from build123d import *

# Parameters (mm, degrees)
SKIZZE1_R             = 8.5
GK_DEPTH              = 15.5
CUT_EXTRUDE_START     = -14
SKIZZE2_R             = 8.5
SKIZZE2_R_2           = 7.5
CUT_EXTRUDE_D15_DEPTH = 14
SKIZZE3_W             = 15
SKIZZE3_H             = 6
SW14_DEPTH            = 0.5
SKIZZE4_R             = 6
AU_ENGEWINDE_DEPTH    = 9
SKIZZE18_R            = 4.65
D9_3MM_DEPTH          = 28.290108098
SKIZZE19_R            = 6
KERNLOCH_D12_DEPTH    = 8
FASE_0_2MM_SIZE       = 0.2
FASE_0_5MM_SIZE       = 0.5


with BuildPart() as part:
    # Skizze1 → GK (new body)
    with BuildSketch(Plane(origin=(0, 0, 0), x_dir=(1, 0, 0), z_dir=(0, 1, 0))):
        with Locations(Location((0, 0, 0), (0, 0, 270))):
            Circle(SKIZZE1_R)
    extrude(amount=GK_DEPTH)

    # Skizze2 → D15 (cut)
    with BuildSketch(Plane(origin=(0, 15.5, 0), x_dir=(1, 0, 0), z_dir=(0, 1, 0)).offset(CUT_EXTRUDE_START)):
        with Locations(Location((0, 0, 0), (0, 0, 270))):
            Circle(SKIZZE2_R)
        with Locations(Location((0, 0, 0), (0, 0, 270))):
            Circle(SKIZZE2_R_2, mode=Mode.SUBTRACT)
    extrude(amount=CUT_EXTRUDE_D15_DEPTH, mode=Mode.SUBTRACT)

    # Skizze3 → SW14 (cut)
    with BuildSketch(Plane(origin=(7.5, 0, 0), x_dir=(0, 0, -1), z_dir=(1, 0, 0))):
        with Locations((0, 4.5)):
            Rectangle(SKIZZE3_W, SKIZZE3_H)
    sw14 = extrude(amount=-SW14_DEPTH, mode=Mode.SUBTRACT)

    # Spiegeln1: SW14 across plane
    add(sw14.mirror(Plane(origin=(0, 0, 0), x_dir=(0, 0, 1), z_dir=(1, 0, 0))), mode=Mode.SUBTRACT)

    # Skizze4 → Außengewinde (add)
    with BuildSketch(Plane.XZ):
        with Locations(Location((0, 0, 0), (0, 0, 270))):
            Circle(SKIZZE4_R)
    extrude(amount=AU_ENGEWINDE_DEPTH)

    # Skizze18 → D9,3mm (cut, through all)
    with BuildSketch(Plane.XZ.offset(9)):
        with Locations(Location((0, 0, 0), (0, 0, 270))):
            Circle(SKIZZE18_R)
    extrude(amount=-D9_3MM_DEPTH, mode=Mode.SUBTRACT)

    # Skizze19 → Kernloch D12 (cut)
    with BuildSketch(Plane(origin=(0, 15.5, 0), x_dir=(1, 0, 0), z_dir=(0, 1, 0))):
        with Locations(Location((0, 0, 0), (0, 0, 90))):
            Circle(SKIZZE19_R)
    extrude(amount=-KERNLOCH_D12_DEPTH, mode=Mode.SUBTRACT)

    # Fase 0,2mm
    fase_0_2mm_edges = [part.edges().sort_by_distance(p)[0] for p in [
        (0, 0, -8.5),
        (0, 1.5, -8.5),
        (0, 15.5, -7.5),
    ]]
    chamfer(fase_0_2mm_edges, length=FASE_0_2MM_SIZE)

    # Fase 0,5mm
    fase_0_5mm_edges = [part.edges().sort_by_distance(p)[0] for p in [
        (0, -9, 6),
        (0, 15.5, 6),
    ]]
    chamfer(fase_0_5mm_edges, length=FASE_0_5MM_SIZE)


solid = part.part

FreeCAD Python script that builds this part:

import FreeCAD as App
import Part
import Sketcher
Q = App.Units.Quantity


def edges_at(feature, points):
    """Names of the edges that pass closest to the given points."""
    edges = feature.Shape.Edges
    near = lambda p: min(range(len(edges)), key=lambda i: edges[i].distToShape(Part.Vertex(*p))[0])
    return sorted({f"Edge{near(p) + 1}" for p in points})


def add_polygon(sketch, points):
    """Adds a closed chain of lines whose ends are joined by coincident constraints."""
    first, n = sketch.GeometryCount, len(points)
    for a, b in zip(points, points[1:] + points[:1]):
        sketch.addGeometry(Part.LineSegment(App.Vector(*a, 0), App.Vector(*b, 0)), False)
    for i in range(n):
        sketch.addConstraint(Sketcher.Constraint("Coincident", first + i, 2, first + (i + 1) % n, 1))

doc = App.newDocument("Part")
body = doc.addObject("PartDesign::Body", "Body")

# Sketch on XZ plane
sketch1 = body.newObject("Sketcher::SketchObject", "Sketch")
sketch1.AttachmentSupport = (doc.getObject("XZ_Plane"), [""])
sketch1.MapMode = "FlatFace"
sketch1.addGeometry(Part.Circle(App.Vector(0, 0, 0), App.Vector(0, 0, 1), 8), False)
sketch1.addConstraint([
    Sketcher.Constraint("Coincident", 0, 3, -1, 1),
    Sketcher.Constraint("Diameter", 0, Q("17 mm")),
])
pad1 = body.newObject("PartDesign::Pad", "Pad")
pad1.Profile = sketch1
pad1.Length = 15.5
pad1.Reversed = True

# Sketch on XZ plane
sketch2 = body.newObject("Sketcher::SketchObject", "Sketch001")
sketch2.AttachmentSupport = (doc.getObject("XZ_Plane"), [""])
sketch2.MapMode = "FlatFace"
sketch2.AttachmentOffset = App.Placement(App.Vector(0, 0, -1.5), App.Rotation())
sketch2.addGeometry([
    Part.Circle(App.Vector(0, 0, 0), App.Vector(0, 0, 1), 8),
    Part.Circle(App.Vector(0, 0, 0), App.Vector(0, 0, 1), 8),
], False)
sketch2.addConstraint([
    Sketcher.Constraint("Coincident", 0, 3, -1, 1),
    Sketcher.Constraint("Coincident", 1, 3, -1, 1),
    Sketcher.Constraint("Diameter", 0, Q("17 mm")),
    Sketcher.Constraint("Diameter", 1, Q("15 mm")),
])
pocket1 = body.newObject("PartDesign::Pocket", "Pocket")
pocket1.Profile = sketch2
pocket1.Length = 14

# Sketch on YZ plane
sketch3 = body.newObject("Sketcher::SketchObject", "Sketch002")
sketch3.AttachmentSupport = (doc.getObject("YZ_Plane"), [""])
sketch3.MapMode = "FlatFace"
sketch3.AttachmentOffset = App.Placement(App.Vector(0, 0, 7.5), App.Rotation())
add_polygon(sketch3, [(8, 8), (2, 8), (2, -8), (8, -8)])  # lines 0-3
sketch3.addConstraint([
    Sketcher.Constraint("Horizontal", 0),
    Sketcher.Constraint("Vertical", 1),
    Sketcher.Constraint("Horizontal", 2),
    Sketcher.Constraint("Vertical", 3),
    Sketcher.Constraint("DistanceX", 0, 2, 0, 1, Q("6 mm")),
    Sketcher.Constraint("DistanceY", 1, 2, 1, 1, Q("15 mm")),
    Sketcher.Constraint("DistanceX", -1, 1, 0, 2, Q("1.5 mm")),
    Sketcher.Constraint("DistanceY", -1, 1, 0, 2, Q("7.5 mm")),
])
pocket2 = body.newObject("PartDesign::Pocket", "Pocket001")
pocket2.Profile = sketch3
pocket2.Length = 0.5
doc.recompute()

mirrored = body.newObject("PartDesign::Mirrored", "Mirrored")
mirrored.Originals = [pocket2]
mirrored.MirrorPlane = (doc.getObject("YZ_Plane"), [""])
body.Tip = mirrored

# Sketch on XZ plane
sketch4 = body.newObject("Sketcher::SketchObject", "Sketch003")
sketch4.AttachmentSupport = (doc.getObject("XZ_Plane"), [""])
sketch4.MapMode = "FlatFace"
sketch4.addGeometry(Part.Circle(App.Vector(0, 0, 0), App.Vector(0, 0, 1), 6), False)
sketch4.addConstraint([
    Sketcher.Constraint("Coincident", 0, 3, -1, 1),
    Sketcher.Constraint("Diameter", 0, Q("12 mm")),
])
pad2 = body.newObject("PartDesign::Pad", "Pad001")
pad2.Profile = sketch4
pad2.Length = 9

# Sketch on XZ plane
sketch5 = body.newObject("Sketcher::SketchObject", "Sketch004")
sketch5.AttachmentSupport = (doc.getObject("XZ_Plane"), [""])
sketch5.MapMode = "FlatFace"
sketch5.AttachmentOffset = App.Placement(App.Vector(0, 0, 9), App.Rotation())
sketch5.addGeometry(Part.Circle(App.Vector(0, 0, 0), App.Vector(0, 0, 1), 4.7), False)
sketch5.addConstraint([
    Sketcher.Constraint("Coincident", 0, 3, -1, 1),
    Sketcher.Constraint("Diameter", 0, Q("9.3 mm")),
])
pocket3 = body.newObject("PartDesign::Pocket", "Pocket002")
pocket3.Profile = sketch5
pocket3.Type = "ThroughAll"

# Sketch on XZ plane
sketch6 = body.newObject("Sketcher::SketchObject", "Sketch005")
sketch6.AttachmentSupport = (doc.getObject("XZ_Plane"), [""])
sketch6.MapMode = "FlatFace"
sketch6.AttachmentOffset = App.Placement(App.Vector(0, 0, -15.5), App.Rotation())
sketch6.addGeometry(Part.Circle(App.Vector(0, 0, 0), App.Vector(0, 0, 1), 6), False)
sketch6.addConstraint([
    Sketcher.Constraint("Coincident", 0, 3, -1, 1),
    Sketcher.Constraint("Diameter", 0, Q("12 mm")),
])
pocket4 = body.newObject("PartDesign::Pocket", "Pocket003")
pocket4.Profile = sketch6
pocket4.Length = 8
pocket4.Reversed = True
doc.recompute()

chamfer = body.newObject("PartDesign::Chamfer", "Chamfer")
chamfer.Base = (pocket4, edges_at(pocket4, [(0, 0, -8.5), (0, 1.5, -8.5), (0, 15.5, -7.5)]))
chamfer.Size = 0.2
doc.recompute()

chamfer2 = body.newObject("PartDesign::Chamfer", "Chamfer001")
chamfer2.Base = (chamfer, edges_at(chamfer, [(0, -9, 6), (0, 15.5, 6)]))
chamfer2.Size = 0.5

doc.recompute()
